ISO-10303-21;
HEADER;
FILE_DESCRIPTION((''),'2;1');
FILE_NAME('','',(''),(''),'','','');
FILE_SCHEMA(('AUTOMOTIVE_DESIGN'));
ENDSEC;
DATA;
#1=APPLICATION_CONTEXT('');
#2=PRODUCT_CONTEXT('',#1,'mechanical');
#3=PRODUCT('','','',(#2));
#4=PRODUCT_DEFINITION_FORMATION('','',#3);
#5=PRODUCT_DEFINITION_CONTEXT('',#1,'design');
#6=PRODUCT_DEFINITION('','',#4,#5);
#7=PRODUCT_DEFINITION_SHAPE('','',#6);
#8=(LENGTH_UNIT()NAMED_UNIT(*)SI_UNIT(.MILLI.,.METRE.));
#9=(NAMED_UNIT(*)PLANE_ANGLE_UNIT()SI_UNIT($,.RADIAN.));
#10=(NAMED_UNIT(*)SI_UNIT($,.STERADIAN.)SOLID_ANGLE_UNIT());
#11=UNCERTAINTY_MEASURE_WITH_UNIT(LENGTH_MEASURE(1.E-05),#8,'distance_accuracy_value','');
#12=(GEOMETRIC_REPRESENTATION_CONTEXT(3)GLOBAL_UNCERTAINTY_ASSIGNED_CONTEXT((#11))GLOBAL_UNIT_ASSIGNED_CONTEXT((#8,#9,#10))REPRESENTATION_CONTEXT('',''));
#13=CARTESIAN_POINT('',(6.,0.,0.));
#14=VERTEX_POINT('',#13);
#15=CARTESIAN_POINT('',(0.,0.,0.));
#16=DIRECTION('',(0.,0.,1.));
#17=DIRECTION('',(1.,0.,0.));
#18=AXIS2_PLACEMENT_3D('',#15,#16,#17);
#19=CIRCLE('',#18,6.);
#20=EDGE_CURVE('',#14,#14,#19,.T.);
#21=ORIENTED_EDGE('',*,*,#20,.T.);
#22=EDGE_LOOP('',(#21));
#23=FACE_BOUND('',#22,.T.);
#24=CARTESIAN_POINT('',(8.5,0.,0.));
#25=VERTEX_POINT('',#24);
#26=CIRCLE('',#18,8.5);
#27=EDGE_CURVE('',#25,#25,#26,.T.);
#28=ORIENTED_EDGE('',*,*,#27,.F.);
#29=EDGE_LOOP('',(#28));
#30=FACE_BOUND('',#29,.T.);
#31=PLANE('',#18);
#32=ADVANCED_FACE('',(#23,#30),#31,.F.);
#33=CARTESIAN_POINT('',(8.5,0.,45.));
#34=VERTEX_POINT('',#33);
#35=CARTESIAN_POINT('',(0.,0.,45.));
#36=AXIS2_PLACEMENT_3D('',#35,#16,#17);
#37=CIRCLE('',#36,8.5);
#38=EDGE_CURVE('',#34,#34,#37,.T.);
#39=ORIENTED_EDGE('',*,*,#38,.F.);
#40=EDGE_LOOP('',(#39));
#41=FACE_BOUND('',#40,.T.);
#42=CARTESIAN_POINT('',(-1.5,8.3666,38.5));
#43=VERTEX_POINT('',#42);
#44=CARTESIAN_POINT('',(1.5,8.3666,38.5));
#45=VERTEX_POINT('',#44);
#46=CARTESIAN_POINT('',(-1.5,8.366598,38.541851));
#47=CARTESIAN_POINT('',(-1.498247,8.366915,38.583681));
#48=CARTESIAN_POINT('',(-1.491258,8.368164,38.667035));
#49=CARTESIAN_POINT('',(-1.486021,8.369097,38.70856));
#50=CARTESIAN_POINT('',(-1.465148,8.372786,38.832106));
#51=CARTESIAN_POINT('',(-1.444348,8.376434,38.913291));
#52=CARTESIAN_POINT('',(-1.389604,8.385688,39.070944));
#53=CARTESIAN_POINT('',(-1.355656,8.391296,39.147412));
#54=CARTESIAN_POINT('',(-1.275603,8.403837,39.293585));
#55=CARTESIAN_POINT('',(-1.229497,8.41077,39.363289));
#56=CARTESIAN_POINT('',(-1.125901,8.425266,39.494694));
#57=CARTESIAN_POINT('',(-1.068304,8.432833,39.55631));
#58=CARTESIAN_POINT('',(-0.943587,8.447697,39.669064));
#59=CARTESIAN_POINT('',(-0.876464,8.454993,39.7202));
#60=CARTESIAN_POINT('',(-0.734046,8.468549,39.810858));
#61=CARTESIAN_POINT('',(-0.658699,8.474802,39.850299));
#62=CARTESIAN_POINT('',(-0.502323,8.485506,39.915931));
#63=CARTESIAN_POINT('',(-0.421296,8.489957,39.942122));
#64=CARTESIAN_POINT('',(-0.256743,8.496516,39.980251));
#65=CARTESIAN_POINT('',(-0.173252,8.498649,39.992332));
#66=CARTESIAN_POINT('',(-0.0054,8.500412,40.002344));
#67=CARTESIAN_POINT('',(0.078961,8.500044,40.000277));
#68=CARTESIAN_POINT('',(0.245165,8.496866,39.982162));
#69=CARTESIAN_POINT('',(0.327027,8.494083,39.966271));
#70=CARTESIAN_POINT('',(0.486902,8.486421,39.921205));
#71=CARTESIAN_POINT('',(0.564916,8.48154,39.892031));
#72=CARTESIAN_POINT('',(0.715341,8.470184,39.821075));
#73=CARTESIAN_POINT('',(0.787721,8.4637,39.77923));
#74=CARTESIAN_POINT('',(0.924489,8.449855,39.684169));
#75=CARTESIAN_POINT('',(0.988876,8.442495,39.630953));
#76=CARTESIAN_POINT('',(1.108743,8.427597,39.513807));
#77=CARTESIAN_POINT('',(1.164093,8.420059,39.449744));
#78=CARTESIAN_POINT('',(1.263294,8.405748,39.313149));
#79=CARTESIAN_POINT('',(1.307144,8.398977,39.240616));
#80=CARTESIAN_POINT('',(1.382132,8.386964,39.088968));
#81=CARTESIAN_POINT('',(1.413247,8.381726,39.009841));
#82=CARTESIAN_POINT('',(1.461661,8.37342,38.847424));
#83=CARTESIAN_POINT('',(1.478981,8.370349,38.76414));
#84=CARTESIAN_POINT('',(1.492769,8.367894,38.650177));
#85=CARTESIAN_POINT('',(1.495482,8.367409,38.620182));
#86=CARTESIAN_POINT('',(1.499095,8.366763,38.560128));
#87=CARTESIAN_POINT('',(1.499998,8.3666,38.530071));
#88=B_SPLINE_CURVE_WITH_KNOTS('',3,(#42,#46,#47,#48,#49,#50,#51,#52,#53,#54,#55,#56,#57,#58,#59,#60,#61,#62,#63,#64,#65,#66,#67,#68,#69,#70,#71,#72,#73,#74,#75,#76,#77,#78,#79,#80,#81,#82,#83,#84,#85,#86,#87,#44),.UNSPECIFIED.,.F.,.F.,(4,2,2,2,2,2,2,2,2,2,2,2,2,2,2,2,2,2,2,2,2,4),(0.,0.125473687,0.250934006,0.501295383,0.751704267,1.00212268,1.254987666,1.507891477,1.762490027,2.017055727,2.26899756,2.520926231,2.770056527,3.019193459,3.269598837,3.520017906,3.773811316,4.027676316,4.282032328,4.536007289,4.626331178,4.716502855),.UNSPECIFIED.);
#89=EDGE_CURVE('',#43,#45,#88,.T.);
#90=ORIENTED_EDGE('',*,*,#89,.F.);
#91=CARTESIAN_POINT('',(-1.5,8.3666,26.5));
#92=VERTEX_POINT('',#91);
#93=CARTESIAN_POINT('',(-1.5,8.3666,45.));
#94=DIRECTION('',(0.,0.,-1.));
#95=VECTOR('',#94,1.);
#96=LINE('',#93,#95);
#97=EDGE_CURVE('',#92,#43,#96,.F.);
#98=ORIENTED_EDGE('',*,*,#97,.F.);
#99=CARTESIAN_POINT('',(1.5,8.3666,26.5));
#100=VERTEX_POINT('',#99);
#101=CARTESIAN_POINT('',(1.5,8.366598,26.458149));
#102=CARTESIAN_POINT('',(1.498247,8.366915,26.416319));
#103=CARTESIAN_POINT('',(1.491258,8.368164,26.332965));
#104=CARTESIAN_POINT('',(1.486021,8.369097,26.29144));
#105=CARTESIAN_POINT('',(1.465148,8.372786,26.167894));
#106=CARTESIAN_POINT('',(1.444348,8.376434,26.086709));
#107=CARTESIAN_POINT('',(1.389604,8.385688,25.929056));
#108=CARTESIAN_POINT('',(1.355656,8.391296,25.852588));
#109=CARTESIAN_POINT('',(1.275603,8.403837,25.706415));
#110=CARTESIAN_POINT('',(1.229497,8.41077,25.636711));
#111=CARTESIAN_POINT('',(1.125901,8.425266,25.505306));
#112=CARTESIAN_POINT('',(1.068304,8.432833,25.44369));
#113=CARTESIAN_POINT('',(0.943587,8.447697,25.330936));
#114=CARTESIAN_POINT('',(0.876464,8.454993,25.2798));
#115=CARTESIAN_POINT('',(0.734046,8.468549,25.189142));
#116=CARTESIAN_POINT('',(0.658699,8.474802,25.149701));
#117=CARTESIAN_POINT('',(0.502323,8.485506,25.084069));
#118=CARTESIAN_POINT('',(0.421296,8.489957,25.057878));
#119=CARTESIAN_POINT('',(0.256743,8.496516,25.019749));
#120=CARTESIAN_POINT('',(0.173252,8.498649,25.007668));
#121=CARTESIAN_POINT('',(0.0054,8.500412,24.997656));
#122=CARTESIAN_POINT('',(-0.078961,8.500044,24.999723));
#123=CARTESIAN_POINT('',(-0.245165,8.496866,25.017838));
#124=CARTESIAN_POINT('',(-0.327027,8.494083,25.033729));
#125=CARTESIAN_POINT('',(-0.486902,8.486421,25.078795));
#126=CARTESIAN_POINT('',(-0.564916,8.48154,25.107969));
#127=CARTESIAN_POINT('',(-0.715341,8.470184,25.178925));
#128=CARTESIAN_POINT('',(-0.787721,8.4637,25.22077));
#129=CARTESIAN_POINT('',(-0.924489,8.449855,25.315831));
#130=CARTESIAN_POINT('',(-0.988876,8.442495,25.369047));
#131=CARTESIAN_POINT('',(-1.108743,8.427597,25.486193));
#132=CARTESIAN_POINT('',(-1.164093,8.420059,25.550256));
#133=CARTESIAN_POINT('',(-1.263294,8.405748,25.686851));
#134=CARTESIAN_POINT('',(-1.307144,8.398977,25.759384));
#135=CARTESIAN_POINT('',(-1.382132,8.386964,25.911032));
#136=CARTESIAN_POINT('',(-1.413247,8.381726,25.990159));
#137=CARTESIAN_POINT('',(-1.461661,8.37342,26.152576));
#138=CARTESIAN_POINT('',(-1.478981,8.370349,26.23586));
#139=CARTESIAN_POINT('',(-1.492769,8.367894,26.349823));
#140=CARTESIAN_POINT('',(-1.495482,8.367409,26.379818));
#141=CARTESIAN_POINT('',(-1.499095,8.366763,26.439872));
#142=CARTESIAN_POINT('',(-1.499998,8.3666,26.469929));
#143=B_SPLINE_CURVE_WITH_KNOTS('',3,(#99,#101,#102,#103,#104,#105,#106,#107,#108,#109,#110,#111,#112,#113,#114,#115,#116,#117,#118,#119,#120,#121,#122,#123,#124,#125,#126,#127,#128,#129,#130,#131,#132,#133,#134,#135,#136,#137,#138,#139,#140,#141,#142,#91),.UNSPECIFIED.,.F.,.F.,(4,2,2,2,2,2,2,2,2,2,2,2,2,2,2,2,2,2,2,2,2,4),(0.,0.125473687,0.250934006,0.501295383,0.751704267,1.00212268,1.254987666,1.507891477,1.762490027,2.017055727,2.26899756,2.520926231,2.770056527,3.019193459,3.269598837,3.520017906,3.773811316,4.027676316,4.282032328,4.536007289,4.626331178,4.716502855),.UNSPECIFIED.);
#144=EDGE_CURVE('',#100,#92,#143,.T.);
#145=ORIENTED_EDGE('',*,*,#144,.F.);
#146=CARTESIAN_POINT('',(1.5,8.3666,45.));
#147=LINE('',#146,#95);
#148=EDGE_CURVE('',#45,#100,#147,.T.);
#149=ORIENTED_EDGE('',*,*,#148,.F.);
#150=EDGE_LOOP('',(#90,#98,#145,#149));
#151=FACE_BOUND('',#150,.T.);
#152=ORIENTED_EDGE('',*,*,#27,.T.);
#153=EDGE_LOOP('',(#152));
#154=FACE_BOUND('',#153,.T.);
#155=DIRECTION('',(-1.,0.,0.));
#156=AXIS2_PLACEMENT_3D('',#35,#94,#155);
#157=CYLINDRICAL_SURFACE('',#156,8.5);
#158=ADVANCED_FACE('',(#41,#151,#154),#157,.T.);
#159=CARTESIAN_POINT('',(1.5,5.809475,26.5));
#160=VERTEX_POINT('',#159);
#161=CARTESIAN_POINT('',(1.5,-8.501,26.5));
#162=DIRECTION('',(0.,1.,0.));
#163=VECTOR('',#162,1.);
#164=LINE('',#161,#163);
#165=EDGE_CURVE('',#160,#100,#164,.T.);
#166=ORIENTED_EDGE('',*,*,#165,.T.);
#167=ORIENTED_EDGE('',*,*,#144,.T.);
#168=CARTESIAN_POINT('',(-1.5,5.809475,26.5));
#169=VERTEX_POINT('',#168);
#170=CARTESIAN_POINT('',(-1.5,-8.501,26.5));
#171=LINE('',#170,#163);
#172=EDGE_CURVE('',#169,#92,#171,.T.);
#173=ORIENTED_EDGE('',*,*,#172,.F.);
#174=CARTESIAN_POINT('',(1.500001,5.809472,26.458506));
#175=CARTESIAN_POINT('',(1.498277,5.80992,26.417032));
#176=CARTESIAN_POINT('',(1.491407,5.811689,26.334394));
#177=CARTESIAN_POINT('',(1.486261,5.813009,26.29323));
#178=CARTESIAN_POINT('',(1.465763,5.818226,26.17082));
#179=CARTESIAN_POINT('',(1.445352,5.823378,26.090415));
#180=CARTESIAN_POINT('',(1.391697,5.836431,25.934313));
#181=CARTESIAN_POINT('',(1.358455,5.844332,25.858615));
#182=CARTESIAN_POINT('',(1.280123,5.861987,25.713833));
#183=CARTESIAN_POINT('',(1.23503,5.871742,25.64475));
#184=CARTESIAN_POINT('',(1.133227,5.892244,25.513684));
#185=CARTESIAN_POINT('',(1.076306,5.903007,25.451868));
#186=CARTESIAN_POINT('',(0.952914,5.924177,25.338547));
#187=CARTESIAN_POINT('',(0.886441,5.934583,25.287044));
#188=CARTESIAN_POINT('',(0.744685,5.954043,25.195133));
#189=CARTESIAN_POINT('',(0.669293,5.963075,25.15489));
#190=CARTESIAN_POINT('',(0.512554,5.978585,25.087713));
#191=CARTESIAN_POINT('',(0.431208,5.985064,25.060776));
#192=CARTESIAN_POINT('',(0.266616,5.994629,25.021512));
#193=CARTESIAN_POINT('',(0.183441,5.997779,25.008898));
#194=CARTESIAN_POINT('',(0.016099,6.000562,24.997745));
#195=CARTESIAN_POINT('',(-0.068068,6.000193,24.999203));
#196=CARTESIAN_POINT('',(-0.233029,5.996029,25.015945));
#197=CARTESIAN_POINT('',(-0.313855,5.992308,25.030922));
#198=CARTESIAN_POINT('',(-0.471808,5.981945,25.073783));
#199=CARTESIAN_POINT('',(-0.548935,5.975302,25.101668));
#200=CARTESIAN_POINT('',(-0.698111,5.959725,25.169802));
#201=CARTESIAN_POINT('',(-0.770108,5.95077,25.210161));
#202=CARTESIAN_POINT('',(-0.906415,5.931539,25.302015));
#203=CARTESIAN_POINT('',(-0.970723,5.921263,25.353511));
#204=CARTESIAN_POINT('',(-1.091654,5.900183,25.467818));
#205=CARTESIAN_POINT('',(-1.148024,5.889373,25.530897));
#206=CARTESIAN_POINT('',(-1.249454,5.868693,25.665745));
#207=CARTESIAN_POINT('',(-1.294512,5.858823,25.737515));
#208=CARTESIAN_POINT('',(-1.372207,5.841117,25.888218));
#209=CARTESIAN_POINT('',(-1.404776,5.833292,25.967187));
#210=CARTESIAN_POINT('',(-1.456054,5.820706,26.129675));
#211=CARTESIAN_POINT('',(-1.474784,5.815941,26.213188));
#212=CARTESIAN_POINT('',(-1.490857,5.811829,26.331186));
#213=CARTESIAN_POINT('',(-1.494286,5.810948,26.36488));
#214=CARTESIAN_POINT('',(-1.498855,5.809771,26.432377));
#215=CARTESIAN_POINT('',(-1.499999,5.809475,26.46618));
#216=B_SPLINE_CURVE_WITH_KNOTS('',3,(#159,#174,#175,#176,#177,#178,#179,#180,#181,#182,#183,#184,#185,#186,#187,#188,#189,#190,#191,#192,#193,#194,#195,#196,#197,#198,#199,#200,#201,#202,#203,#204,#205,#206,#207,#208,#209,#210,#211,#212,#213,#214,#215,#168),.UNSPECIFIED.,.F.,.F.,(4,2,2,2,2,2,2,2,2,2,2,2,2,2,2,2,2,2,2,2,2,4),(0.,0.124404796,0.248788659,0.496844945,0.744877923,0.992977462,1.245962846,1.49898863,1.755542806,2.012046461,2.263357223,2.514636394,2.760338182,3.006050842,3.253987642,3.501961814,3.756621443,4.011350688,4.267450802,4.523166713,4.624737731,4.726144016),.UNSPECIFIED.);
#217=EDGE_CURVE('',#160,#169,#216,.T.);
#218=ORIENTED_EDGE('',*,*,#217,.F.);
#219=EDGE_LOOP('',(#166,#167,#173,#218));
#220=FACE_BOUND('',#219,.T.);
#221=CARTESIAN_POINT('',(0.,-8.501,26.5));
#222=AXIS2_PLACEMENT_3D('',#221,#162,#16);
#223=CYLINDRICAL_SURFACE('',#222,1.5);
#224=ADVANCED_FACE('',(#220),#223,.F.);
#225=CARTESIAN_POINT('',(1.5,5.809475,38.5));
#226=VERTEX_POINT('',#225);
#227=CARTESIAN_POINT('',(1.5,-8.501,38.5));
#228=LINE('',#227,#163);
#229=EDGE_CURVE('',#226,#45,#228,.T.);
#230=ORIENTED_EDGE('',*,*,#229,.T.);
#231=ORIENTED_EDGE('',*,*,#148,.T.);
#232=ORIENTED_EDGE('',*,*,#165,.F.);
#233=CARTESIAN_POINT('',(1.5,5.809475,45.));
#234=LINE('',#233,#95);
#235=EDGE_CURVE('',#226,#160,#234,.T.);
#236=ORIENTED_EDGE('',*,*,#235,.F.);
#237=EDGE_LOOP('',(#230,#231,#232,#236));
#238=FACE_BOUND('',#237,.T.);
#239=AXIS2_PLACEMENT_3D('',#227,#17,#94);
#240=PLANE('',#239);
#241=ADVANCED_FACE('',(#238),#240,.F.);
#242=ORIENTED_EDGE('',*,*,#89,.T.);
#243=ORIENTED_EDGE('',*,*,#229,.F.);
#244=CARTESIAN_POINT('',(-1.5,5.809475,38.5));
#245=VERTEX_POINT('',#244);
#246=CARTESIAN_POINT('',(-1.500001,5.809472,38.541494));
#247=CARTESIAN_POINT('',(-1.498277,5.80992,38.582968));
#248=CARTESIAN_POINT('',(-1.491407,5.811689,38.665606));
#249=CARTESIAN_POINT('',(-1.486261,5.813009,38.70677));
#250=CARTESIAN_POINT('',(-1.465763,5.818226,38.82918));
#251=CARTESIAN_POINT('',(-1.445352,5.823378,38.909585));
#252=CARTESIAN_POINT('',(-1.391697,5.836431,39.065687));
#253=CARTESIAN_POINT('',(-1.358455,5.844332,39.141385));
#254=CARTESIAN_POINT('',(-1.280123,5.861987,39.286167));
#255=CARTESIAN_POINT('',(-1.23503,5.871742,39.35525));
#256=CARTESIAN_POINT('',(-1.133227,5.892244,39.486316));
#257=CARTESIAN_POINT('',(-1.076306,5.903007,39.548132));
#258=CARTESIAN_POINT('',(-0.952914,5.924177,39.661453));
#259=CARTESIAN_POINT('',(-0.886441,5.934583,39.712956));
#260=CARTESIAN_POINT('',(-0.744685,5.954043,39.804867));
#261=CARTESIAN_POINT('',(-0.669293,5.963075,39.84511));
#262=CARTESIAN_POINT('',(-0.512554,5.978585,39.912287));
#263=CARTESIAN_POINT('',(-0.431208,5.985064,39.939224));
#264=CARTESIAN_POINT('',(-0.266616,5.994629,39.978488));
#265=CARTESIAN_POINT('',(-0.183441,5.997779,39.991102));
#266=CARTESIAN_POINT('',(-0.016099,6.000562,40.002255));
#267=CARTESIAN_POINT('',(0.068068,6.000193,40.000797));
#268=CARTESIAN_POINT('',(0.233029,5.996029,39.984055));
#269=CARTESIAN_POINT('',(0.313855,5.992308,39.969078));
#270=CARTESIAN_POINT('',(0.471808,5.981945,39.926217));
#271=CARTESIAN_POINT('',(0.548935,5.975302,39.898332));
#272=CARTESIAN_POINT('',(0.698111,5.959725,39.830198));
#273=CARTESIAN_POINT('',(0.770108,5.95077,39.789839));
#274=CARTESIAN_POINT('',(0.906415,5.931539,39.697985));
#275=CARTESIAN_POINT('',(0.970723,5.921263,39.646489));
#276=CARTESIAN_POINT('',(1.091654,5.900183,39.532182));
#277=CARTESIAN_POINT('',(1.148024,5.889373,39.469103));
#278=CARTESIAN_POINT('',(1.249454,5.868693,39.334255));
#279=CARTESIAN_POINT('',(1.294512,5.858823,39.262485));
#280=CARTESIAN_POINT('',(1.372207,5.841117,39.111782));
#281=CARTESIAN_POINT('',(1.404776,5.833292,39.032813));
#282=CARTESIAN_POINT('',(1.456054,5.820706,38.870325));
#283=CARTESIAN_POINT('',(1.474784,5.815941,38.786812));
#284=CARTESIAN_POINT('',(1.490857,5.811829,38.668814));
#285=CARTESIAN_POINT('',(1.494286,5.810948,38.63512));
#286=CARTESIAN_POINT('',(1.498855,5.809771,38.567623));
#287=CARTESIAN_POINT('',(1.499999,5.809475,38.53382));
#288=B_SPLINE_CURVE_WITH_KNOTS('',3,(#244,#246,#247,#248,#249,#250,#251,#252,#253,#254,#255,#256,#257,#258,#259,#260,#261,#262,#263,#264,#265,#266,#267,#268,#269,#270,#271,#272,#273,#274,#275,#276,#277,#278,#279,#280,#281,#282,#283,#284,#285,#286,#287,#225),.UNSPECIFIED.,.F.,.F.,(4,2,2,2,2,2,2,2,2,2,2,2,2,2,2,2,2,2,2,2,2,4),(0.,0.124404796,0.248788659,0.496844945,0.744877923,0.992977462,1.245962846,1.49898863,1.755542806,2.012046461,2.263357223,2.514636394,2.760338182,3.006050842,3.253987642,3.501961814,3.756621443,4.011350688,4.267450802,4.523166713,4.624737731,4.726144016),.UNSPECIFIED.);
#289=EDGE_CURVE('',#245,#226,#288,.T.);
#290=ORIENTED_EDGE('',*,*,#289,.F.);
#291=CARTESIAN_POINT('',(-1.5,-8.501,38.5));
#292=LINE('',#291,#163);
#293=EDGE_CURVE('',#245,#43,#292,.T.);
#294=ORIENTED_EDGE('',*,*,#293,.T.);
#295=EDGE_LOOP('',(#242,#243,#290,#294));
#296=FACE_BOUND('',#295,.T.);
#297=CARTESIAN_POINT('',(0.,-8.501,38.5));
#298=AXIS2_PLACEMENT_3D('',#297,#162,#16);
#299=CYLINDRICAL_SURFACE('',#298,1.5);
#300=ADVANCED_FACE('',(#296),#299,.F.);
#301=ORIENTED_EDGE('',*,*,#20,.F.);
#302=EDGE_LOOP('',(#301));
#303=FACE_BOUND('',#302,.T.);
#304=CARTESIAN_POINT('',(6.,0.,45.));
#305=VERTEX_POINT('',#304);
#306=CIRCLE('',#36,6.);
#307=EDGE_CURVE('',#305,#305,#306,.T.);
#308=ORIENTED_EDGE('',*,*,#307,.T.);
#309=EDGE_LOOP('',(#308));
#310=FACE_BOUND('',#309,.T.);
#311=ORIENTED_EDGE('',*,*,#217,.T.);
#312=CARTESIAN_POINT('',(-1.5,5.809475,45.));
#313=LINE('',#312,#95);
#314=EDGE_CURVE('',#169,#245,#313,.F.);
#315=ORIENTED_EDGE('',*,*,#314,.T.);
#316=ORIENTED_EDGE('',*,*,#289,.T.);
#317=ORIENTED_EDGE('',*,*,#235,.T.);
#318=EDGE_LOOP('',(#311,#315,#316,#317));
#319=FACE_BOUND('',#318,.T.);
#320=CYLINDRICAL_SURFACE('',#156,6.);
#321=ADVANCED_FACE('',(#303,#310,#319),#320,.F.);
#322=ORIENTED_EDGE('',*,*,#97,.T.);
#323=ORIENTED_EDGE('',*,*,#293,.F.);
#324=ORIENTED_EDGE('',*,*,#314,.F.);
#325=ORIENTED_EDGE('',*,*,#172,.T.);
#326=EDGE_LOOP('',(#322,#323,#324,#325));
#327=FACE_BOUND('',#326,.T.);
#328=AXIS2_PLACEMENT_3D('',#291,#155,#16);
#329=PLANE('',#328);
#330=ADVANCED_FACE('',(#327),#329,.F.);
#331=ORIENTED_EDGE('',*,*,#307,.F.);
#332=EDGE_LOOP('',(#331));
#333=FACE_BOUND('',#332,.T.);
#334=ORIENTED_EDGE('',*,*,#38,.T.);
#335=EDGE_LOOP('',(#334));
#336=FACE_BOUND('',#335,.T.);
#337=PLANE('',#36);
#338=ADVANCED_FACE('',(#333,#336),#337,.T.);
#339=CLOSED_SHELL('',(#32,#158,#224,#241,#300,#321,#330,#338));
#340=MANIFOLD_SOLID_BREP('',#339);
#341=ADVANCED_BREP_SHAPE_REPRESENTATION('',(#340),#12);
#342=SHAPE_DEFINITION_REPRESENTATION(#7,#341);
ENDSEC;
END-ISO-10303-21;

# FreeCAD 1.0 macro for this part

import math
import FreeCAD as App
import Part
import Sketcher

V = App.Vector

doc = App.newDocument("Part")
body = doc.addObject("PartDesign::Body", "Body")

# Sketch on XY plane
sketch1 = body.newObject("Sketcher::SketchObject", "Sketch")
sketch1.AttachmentSupport = (doc.getObject("XY_Plane"), [""])
sketch1.MapMode = "FlatFace"
sketch1.addGeometry([
    Part.Circle(V(0, 0, 0), V(0, 0, 1), 8),
    Part.Circle(V(0, 0, 0), V(0, 0, 1), 6),
], False)
sketch1.addConstraint([
    Sketcher.Constraint("Coincident", 0, 3, -1, 1),
    Sketcher.Constraint("Coincident", 1, 3, -1, 1),
    Sketcher.Constraint("Diameter", 0, 17.0),
    Sketcher.Constraint("Diameter", 1, 12.0),
])
pad1 = body.newObject("PartDesign::Pad", "Pad")
pad1.Profile = sketch1
pad1.Length = 45

# Sketch on XZ plane
sketch2 = body.newObject("Sketcher::SketchObject", "Sketch001")
sketch2.AttachmentSupport = (doc.getObject("XZ_Plane"), [""])
sketch2.MapMode = "FlatFace"
sketch2.AttachmentOffset = App.Placement(V(0, 0, -8.5), App.Rotation())
sketch2.addGeometry([
    Part.LineSegment(V(-1.5, 26.5, 0), V(-1.5, 38.5, 0)),
    Part.ArcOfCircle(Part.Circle(V(0, 38.5, 0), V(0, 0, 1), 1.5), math.radians(0), math.radians(180)),
    Part.LineSegment(V(1.5, 38.5, 0), V(1.5, 26.5, 0)),
    Part.ArcOfCircle(Part.Circle(V(0, 26.5, 0), V(0, 0, 1), 1.5), math.radians(180), math.radians(360)),
], False)
sketch2.addConstraint([
    Sketcher.Constraint("Tangent", 0, 2, 1, 2),
    Sketcher.Constraint("Tangent", 1, 1, 2, 1),
    Sketcher.Constraint("Tangent", 2, 2, 3, 2),
    Sketcher.Constraint("Tangent", 3, 1, 0, 1),
    Sketcher.Constraint("Vertical", 0),
    Sketcher.Constraint("Vertical", 2),
    Sketcher.Constraint("PointOnObject", 1, 3, -2),
    Sketcher.Constraint("Radius", 1, 1.5),
    Sketcher.Constraint("DistanceY", 0, 1, 0, 2, 12.0),
    Sketcher.Constraint("DistanceY", -1, 1, 1, 3, 38.5),
])
pocket1 = body.newObject("PartDesign::Pocket", "Pocket")
pocket1.Profile = sketch2
pocket1.Type = "UpToFirst"
pocket1.Reversed = True

doc.recompute()
